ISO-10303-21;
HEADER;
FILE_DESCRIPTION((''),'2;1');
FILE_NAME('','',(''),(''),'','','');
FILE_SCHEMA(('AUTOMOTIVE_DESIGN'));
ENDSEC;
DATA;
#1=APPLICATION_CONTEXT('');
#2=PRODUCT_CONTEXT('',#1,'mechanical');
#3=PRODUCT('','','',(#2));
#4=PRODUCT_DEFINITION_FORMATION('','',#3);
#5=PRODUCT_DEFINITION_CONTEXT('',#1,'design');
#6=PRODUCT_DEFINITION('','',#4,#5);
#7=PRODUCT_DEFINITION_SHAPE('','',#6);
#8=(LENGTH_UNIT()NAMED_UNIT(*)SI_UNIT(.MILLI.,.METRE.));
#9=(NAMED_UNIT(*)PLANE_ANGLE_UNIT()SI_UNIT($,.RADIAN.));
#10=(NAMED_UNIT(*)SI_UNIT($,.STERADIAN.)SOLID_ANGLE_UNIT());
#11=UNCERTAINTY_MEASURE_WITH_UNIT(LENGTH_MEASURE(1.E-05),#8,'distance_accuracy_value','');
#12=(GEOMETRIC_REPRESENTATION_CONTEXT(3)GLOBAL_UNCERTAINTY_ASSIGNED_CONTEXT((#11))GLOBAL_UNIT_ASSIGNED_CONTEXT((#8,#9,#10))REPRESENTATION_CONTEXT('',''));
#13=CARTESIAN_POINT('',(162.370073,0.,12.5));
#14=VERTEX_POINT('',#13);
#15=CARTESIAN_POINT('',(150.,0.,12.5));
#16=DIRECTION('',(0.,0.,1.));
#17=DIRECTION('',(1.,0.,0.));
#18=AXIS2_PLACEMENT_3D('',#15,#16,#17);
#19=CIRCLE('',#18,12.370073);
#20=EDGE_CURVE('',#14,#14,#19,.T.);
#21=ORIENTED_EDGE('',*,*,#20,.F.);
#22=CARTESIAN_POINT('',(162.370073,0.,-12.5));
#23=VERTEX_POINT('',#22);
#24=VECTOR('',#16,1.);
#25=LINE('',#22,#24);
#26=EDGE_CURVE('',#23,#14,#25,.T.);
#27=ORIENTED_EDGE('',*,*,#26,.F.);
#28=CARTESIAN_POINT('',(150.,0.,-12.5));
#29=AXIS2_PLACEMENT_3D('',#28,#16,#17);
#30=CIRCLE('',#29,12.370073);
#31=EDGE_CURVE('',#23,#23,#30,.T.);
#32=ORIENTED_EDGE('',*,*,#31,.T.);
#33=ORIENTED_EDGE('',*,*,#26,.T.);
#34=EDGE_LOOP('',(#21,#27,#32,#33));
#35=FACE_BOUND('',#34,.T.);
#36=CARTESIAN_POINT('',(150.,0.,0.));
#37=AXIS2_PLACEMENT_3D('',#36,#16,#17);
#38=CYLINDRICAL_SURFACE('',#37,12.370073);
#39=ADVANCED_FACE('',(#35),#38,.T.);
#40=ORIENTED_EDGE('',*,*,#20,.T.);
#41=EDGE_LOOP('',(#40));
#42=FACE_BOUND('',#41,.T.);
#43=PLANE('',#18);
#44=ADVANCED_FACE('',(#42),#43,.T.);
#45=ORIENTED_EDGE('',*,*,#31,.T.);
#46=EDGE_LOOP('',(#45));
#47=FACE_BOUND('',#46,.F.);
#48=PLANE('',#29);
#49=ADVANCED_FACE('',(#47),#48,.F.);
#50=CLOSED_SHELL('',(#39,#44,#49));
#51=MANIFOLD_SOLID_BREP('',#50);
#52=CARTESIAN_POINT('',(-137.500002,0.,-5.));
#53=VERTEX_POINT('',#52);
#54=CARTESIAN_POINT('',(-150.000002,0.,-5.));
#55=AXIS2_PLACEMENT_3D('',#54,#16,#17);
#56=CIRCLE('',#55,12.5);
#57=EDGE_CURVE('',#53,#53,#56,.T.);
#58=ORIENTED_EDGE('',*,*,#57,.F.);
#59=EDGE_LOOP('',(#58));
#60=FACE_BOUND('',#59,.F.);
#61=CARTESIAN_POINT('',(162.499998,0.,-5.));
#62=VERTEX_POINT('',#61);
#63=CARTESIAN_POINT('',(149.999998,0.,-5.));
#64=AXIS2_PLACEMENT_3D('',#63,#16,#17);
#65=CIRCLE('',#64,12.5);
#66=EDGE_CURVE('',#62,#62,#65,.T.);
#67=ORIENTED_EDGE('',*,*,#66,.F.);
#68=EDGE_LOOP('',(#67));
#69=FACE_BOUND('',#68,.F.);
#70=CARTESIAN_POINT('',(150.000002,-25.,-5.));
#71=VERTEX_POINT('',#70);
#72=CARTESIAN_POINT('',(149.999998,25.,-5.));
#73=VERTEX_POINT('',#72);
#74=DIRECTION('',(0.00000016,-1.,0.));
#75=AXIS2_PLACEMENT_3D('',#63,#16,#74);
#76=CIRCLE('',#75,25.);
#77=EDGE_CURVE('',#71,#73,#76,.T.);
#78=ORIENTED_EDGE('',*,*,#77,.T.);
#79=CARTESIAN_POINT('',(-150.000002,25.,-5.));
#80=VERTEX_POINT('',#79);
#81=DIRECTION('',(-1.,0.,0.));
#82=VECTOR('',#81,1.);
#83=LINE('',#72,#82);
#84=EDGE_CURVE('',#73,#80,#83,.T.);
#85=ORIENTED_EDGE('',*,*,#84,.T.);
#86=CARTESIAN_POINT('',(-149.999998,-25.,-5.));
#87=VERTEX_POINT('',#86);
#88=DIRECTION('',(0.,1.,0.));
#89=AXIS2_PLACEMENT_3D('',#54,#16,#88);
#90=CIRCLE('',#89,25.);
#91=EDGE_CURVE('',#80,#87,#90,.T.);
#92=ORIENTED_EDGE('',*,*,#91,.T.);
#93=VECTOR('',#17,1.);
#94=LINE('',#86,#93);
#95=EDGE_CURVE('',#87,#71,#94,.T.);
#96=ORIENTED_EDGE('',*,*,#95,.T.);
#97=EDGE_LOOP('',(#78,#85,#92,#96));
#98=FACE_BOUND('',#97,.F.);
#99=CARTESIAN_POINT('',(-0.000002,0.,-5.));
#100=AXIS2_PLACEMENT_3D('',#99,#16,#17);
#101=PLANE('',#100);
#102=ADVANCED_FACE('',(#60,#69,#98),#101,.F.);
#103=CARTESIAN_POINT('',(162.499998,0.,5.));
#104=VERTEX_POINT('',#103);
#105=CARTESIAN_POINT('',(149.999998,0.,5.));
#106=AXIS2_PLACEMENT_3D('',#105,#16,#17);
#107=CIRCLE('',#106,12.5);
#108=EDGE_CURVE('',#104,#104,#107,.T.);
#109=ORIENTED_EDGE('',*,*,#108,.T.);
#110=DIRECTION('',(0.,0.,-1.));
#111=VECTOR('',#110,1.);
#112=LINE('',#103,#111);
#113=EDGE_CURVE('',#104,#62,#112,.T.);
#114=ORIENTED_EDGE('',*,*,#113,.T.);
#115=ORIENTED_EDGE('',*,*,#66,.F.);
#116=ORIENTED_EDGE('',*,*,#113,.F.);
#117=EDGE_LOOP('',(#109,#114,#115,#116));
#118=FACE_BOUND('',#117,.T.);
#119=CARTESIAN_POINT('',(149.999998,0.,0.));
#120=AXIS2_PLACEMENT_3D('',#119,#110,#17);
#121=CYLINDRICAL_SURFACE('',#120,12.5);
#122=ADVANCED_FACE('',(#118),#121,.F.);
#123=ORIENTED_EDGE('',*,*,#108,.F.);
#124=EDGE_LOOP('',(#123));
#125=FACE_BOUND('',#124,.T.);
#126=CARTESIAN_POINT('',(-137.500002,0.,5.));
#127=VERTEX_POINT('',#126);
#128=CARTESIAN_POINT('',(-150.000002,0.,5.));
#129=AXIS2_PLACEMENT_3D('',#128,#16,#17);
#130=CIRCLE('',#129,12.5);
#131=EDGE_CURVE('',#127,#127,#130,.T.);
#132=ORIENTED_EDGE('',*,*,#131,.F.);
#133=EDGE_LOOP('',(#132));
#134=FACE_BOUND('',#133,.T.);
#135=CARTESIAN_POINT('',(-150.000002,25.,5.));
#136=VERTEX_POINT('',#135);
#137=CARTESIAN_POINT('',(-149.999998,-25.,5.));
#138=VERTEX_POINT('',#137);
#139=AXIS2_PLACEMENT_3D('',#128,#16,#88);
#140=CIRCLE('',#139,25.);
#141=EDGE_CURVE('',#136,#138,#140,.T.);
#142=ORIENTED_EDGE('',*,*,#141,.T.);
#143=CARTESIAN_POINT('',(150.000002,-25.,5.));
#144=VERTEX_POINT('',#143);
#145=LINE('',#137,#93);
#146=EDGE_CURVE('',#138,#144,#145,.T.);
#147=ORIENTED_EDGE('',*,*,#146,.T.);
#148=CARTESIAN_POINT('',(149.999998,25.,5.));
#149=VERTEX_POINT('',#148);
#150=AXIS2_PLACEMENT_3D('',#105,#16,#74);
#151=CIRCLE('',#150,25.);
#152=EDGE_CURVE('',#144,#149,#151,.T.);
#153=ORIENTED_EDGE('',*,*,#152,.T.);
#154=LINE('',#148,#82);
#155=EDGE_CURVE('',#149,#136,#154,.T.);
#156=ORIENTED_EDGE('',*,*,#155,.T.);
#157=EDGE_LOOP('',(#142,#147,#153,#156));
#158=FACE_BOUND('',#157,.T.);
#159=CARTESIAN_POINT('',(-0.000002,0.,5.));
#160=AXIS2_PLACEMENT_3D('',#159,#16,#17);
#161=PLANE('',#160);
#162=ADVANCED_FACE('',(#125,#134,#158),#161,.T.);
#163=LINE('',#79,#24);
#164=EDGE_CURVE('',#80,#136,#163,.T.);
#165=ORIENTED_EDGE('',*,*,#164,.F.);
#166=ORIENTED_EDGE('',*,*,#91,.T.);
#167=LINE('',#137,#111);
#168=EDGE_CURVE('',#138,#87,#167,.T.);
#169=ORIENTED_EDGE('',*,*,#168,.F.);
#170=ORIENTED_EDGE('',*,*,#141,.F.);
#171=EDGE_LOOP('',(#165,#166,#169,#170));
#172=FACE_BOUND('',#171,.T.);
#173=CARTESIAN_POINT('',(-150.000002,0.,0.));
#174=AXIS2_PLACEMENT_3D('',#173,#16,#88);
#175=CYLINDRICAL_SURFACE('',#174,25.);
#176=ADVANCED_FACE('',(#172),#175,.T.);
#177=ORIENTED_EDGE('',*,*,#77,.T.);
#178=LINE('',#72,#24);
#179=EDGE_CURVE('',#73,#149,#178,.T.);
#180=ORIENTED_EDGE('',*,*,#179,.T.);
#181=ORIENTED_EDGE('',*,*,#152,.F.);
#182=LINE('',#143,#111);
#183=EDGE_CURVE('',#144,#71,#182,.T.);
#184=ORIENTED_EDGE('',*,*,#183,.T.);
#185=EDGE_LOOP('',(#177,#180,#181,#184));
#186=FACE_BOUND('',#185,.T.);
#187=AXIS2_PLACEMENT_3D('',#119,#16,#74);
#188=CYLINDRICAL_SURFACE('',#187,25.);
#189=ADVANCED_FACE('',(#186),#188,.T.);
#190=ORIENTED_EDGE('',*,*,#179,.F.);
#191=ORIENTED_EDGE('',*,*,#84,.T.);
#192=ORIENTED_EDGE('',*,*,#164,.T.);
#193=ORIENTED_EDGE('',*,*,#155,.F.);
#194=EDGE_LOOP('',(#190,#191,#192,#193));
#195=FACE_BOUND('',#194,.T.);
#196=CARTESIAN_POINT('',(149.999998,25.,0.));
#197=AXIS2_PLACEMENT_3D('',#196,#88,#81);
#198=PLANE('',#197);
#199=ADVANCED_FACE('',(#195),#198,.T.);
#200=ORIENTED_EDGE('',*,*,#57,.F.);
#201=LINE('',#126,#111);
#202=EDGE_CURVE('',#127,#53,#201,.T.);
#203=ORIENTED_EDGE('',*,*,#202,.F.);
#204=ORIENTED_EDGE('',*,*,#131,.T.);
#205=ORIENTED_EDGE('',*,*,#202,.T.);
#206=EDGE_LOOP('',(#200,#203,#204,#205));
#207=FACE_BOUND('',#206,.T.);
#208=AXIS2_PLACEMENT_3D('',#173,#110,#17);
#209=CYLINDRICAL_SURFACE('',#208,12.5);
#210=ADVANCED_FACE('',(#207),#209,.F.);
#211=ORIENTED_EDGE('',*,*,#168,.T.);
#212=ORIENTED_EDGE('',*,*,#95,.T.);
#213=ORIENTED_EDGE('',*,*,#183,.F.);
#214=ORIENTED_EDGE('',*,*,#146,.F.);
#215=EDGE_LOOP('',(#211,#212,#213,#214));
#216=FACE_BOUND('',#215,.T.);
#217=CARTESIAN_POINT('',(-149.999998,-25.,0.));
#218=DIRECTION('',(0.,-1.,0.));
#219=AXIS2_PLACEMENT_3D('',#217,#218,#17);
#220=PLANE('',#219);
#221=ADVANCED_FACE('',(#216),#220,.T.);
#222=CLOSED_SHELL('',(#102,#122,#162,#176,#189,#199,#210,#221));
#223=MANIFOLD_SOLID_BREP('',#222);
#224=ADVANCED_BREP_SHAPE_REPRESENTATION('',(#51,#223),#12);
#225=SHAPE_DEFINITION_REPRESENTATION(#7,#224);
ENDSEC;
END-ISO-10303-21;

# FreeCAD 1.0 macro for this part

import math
import FreeCAD as App
import Part
import Sketcher
Q = App.Units.Quantity

doc = App.newDocument("Part")
body = doc.addObject("PartDesign::Body", "Body")

# Sketch on XY plane
sketch1 = body.newObject("Sketcher::SketchObject", "Sketch")
sketch1.AttachmentSupport = (doc.getObject("XY_Plane"), [""])
sketch1.MapMode = "FlatFace"
sketch1.addGeometry([
    Part.ArcOfCircle(Part.Circle(App.Vector(149.999998, 0, 0), App.Vector(0, 0, 1), 25), math.radians(-89.999991), math.radians(90)),  # 0
    Part.LineSegment(App.Vector(149.999998, 25, 0), App.Vector(-150.000002, 25, 0)),  # 1
    Part.ArcOfCircle(Part.Circle(App.Vector(-150.000002, 0, 0), App.Vector(0, 0, 1), 25), math.radians(90), math.radians(270.000009)),  # 2
    Part.LineSegment(App.Vector(-149.999998, -25, 0), App.Vector(150.000002, -25, 0)),  # 3
    Part.Circle(App.Vector(-150.000002, 0, 0), App.Vector(0, 0, 1), 12.5),  # 4
    Part.Circle(App.Vector(149.999998, 0, 0), App.Vector(0, 0, 1), 12.5),  # 5
], False)
sketch1.addConstraint([
    Sketcher.Constraint("Tangent", 0, 2, 1, 1),
    Sketcher.Constraint("Tangent", 1, 2, 2, 1),
    Sketcher.Constraint("Tangent", 2, 2, 3, 1),
    Sketcher.Constraint("Tangent", 3, 2, 0, 1),
    Sketcher.Constraint("Horizontal", 1),
    Sketcher.Constraint("Horizontal", 3),
    Sketcher.Constraint("Coincident", 4, 3, 2, 3),
    Sketcher.Constraint("Coincident", 5, 3, 0, 3),
    Sketcher.Constraint("Equal", 4, 5),
    Sketcher.Constraint("Symmetric", 0, 3, 2, 3, -1, 1),
    Sketcher.Constraint("Diameter", 4, Q("25 mm")),
    Sketcher.Constraint("Radius", 0, Q("25 mm")),
    Sketcher.Constraint("DistanceX", 1, 2, 1, 1, Q("300 mm")),
])
pad1 = body.newObject("PartDesign::Pad", "Pad")
pad1.Profile = sketch1
pad1.Length = 10
pad1.Midplane = True
body2 = doc.addObject("PartDesign::Body", "Body001")

# Sketch on XY plane
sketch2 = body2.newObject("Sketcher::SketchObject", "Sketch001")
sketch2.AttachmentSupport = (doc.getObject("XY_Plane001"), [""])
sketch2.MapMode = "FlatFace"
sketch2.addGeometry(Part.Circle(App.Vector(150, 0, 0), App.Vector(0, 0, 1), 12.370073), False)
sketch2.addConstraint([
    Sketcher.Constraint("PointOnObject", 0, 3, -1),
    Sketcher.Constraint("DistanceX", -1, 1, 0, 3, Q("150 mm")),
    Sketcher.Constraint("Diameter", 0, Q("24.740146 mm")),
])
pad2 = body2.newObject("PartDesign::Pad", "Pad001")
pad2.Profile = sketch2
pad2.Length = 25
pad2.Midplane = True

doc.recompute()
